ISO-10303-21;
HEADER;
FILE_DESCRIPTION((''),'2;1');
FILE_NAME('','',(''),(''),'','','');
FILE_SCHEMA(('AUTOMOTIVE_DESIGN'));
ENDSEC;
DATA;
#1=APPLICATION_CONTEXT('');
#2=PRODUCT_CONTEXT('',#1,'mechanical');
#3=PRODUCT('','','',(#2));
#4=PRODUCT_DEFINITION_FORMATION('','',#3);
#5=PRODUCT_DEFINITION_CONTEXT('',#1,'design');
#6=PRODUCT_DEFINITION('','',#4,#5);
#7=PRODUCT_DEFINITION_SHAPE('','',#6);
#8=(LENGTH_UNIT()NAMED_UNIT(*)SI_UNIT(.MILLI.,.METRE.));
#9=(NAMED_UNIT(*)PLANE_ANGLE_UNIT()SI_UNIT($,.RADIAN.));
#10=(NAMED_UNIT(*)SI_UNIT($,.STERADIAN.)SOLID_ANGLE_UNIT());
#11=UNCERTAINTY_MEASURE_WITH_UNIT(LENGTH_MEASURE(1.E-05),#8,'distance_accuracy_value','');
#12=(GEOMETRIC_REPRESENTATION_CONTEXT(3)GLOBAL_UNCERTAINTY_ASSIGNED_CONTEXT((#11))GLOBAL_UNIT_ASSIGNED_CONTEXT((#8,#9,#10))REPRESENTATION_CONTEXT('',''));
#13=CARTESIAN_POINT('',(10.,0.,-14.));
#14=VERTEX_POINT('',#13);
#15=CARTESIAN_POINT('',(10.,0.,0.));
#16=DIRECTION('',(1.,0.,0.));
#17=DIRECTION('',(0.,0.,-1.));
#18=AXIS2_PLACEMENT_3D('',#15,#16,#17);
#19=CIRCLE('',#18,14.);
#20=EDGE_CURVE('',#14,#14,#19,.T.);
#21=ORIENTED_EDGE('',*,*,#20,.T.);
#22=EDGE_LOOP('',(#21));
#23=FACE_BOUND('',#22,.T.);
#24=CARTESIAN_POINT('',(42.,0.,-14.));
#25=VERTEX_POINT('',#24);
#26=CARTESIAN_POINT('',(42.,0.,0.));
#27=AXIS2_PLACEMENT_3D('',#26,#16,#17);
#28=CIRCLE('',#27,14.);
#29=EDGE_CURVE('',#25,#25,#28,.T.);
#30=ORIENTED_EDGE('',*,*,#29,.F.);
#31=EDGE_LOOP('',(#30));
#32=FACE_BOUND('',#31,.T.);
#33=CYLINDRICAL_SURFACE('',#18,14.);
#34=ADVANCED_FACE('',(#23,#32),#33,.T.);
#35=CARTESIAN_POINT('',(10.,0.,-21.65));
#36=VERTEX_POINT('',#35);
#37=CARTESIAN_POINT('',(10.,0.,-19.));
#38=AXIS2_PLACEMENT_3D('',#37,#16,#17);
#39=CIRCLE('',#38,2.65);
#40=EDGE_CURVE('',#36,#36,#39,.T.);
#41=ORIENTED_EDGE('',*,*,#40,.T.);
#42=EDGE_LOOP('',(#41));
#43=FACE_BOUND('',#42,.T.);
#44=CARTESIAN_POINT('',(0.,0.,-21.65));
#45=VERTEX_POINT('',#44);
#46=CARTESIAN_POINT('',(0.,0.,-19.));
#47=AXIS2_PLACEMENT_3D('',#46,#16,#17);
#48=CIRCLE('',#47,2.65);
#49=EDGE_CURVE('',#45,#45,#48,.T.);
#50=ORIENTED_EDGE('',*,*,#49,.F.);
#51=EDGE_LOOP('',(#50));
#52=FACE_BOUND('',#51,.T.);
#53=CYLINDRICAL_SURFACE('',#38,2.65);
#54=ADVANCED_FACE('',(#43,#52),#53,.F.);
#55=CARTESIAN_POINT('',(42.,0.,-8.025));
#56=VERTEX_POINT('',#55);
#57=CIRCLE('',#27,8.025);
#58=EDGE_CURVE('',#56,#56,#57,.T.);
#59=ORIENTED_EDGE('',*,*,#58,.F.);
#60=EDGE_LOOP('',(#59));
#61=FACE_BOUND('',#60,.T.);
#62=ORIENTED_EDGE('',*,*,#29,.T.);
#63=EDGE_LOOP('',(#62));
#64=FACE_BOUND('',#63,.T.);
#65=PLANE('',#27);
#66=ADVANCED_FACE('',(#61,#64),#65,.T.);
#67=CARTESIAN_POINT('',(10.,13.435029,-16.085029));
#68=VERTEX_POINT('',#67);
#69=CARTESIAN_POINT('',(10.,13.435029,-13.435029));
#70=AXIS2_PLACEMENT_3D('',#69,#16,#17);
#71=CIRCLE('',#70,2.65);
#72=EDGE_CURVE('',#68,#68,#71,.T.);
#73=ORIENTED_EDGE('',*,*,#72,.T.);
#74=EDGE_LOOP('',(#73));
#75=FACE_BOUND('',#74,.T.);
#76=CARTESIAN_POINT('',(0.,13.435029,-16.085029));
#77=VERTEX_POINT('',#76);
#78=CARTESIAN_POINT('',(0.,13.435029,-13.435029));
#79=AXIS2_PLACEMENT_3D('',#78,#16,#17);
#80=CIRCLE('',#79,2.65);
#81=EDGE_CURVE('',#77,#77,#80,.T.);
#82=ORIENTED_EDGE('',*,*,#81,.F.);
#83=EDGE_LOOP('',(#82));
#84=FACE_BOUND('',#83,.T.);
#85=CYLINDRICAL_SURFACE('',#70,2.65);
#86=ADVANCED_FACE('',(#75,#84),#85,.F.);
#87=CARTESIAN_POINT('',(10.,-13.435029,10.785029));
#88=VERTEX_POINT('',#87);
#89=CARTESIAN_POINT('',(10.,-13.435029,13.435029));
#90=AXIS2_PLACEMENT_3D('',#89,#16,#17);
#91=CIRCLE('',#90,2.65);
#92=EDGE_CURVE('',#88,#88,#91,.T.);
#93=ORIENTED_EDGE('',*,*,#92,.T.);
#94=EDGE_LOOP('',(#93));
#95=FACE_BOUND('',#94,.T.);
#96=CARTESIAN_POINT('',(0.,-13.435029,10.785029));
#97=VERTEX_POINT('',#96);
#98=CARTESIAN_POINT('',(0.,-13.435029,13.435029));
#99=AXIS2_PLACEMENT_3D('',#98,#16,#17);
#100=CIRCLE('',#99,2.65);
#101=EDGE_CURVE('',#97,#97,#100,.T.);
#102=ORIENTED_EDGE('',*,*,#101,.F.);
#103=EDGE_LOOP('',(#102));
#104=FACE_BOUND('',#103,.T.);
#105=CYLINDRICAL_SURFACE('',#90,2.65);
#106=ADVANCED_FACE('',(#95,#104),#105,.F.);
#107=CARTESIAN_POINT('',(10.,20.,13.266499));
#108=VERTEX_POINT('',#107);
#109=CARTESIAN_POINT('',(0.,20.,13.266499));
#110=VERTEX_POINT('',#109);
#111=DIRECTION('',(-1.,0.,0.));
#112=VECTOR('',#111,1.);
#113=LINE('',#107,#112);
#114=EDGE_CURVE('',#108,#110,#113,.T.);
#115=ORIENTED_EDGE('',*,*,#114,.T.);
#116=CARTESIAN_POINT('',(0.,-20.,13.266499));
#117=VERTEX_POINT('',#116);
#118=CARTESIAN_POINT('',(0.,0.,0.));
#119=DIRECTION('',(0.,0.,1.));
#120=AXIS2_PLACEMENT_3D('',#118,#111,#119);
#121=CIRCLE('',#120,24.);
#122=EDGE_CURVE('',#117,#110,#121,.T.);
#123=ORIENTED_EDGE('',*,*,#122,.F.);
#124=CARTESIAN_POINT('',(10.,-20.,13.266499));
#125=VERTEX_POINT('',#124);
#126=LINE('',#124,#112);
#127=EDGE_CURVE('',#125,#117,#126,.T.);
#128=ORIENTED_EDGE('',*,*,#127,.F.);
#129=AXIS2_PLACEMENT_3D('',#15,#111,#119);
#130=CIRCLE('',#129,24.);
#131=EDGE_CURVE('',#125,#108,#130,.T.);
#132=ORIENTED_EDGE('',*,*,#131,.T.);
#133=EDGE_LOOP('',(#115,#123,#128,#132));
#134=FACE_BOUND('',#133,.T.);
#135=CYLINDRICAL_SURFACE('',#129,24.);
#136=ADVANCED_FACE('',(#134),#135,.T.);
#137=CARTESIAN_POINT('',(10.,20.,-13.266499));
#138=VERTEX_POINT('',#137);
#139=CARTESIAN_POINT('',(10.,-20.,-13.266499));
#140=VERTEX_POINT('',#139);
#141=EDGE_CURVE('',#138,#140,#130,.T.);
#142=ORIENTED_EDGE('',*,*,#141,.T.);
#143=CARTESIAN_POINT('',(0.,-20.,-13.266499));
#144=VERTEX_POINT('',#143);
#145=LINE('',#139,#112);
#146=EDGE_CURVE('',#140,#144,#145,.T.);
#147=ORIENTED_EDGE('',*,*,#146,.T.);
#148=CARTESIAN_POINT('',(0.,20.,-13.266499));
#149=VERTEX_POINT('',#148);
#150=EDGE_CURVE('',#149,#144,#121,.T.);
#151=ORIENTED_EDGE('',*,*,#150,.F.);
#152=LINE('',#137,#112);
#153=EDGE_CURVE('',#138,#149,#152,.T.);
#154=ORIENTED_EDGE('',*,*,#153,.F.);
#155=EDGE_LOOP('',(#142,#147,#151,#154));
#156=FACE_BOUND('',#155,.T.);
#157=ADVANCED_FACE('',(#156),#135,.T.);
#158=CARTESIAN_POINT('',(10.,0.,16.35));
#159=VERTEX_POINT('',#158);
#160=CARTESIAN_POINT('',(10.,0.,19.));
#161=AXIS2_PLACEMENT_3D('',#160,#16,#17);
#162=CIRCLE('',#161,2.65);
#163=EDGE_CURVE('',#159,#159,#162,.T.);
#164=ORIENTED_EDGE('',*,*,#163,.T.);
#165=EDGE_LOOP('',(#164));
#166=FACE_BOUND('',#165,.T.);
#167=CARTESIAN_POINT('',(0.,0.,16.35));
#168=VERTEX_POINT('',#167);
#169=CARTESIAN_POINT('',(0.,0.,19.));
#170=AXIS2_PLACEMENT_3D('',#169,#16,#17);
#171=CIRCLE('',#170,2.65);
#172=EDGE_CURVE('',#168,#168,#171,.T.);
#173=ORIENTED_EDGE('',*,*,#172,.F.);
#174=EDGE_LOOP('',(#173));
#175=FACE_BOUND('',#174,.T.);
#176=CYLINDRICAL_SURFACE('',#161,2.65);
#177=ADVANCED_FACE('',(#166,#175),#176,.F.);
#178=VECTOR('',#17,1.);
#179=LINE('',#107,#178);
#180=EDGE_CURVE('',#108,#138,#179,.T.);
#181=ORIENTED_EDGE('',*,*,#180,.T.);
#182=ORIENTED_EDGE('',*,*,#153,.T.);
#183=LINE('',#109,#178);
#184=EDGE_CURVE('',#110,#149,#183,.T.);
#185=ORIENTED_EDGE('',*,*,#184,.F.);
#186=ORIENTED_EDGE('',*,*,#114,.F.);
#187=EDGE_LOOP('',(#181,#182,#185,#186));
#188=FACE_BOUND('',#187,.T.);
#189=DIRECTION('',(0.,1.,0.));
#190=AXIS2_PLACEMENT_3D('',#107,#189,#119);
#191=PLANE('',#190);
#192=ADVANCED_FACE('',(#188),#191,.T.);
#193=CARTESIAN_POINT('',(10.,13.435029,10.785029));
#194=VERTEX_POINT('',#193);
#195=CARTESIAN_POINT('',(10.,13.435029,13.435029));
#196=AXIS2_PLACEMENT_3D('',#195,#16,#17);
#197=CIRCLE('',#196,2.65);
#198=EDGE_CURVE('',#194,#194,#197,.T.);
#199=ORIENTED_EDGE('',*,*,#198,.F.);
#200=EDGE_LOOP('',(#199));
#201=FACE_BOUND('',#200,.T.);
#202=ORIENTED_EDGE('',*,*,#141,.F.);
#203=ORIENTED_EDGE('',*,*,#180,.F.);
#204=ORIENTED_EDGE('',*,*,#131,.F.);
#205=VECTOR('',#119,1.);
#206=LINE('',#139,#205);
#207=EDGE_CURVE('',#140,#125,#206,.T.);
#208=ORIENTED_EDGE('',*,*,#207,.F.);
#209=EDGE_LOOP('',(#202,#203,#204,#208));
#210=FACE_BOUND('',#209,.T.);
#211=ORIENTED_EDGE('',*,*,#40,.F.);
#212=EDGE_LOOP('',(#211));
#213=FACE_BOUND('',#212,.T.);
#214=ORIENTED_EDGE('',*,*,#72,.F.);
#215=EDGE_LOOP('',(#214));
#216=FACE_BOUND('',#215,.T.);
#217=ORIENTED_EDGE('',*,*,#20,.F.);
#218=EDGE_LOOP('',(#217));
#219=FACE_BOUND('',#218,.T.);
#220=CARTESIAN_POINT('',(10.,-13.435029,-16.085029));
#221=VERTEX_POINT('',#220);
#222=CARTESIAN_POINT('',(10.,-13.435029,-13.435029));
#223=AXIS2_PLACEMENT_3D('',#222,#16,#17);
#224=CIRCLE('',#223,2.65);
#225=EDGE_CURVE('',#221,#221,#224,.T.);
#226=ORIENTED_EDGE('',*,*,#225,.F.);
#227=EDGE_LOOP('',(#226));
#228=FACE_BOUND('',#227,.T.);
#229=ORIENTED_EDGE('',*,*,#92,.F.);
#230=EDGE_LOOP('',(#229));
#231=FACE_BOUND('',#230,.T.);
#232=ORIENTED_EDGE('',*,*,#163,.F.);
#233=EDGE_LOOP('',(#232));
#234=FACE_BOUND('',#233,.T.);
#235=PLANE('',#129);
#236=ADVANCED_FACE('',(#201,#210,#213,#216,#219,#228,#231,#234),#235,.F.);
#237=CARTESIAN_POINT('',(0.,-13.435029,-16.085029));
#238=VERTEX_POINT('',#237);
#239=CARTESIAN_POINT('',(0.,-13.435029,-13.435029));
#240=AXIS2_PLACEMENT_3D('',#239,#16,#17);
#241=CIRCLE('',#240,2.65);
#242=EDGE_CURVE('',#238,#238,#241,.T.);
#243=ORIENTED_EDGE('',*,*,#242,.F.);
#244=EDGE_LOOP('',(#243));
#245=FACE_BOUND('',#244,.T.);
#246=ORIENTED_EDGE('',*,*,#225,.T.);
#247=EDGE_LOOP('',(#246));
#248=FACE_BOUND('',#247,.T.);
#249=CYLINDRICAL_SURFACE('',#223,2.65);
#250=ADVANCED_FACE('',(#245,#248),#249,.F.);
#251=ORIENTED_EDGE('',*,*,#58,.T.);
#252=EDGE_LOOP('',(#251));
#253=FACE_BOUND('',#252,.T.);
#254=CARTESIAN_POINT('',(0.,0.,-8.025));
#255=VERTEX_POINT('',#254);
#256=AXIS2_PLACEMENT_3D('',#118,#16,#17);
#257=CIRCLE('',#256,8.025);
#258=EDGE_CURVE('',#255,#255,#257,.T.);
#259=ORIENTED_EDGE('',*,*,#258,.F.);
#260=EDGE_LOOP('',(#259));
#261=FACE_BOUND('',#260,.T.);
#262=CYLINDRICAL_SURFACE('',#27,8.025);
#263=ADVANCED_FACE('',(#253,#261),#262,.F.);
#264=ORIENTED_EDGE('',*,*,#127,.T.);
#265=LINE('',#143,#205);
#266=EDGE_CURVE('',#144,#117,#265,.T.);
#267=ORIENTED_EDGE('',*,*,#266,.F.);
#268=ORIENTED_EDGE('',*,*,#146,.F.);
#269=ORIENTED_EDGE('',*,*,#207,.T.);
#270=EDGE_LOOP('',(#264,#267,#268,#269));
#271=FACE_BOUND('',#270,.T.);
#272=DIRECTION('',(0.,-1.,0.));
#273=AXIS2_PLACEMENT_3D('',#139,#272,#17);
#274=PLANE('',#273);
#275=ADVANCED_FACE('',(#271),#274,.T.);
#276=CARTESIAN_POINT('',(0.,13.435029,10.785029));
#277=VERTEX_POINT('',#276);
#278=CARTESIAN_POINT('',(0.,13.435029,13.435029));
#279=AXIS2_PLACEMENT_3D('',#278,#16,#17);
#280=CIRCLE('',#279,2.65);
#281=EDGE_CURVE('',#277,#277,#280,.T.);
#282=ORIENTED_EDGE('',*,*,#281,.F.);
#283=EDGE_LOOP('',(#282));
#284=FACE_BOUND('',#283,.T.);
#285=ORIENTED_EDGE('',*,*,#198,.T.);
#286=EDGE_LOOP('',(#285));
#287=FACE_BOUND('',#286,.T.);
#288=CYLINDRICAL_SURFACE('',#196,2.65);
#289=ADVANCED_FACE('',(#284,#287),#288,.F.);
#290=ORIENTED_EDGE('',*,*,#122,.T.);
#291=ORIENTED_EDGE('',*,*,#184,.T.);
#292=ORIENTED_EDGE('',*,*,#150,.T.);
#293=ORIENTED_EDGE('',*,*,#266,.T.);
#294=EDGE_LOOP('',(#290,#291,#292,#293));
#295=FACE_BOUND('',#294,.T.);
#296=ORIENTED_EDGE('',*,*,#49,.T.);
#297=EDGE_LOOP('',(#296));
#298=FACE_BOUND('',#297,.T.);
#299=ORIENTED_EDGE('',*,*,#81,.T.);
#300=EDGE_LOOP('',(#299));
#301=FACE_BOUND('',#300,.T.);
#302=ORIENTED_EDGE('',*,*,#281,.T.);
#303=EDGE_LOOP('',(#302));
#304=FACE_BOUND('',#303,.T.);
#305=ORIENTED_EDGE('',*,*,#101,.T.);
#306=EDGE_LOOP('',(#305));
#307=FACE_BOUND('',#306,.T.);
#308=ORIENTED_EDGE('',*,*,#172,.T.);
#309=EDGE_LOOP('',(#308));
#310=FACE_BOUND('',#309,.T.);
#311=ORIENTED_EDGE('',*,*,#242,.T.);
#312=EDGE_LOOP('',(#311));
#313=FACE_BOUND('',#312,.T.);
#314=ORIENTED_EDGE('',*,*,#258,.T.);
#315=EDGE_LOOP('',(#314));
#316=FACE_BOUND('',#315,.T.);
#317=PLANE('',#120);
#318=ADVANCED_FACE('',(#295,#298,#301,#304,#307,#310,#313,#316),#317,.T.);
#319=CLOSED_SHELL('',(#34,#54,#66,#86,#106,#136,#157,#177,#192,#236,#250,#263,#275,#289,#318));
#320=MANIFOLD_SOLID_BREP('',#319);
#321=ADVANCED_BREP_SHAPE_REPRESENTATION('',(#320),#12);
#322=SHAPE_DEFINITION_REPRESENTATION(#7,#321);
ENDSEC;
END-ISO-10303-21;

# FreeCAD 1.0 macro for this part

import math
import FreeCAD as App
import Part
import Sketcher

V = App.Vector
Q = App.Units.Quantity

doc = App.newDocument("Part")
body = doc.addObject("PartDesign::Body", "Body")

# Sketch on YZ plane
sketch1 = doc.addObject("Sketcher::SketchObject", "Sketch")
body.addObject(sketch1)
sketch1.AttachmentSupport = (doc.YZ_Plane, [""])
sketch1.MapMode = "FlatFace"
sketch1.addGeometry([
    Part.LineSegment(V(-20, -13, 0), V(-20, 13, 0)),
    Part.ArcOfCircle(Part.Circle(V(0, 0, 0), V(0, 0, 1), 24), math.radians(34), math.radians(146)),
    Part.LineSegment(V(20, 13, 0), V(20, -13, 0)),
    Part.ArcOfCircle(Part.Circle(V(0, 0, 0), V(0, 0, 1), 24), math.radians(-146), math.radians(-34)),
], False)
sketch1.addConstraint([
    Sketcher.Constraint("Coincident", 0, 2, 1, 2),
    Sketcher.Constraint("Coincident", 1, 1, 2, 1),
    Sketcher.Constraint("Coincident", 2, 2, 3, 2),
    Sketcher.Constraint("Coincident", 3, 1, 0, 1),
    Sketcher.Constraint("Vertical", 0),
    Sketcher.Constraint("Vertical", 2),
    Sketcher.Constraint("Coincident", 1, 3, -1, 1),
    Sketcher.Constraint("Coincident", 3, 3, -1, 1),
    Sketcher.Constraint("Equal", 1, 3),
    Sketcher.Constraint("Horizontal", 0, 2, 1, 1),
    Sketcher.Constraint("Radius", 1, Q("24 mm")),
    Sketcher.Constraint("DistanceX", 0, 2, -1, 1, Q("20 mm")),
])
pad1 = doc.addObject("PartDesign::Pad", "Pad")
body.addObject(pad1)
pad1.Profile = sketch1
pad1.Length = 10

# Sketch on XY plane
sketch2 = doc.addObject("Sketcher::SketchObject", "Sketch001")
body.addObject(sketch2)
sketch2.AttachmentSupport = (doc.XY_Plane, [""])
sketch2.MapMode = "FlatFace"
sketch2.addGeometry([
    Part.LineSegment(V(10, 14, 0), V(10, 0, 0)),
    Part.LineSegment(V(10, 0, 0), V(42, 0, 0)),
    Part.LineSegment(V(42, 0, 0), V(42, 14, 0)),
    Part.LineSegment(V(42, 14, 0), V(10, 14, 0)),
], False)
sketch2.addConstraint([
    Sketcher.Constraint("Coincident", 0, 2, 1, 1),
    Sketcher.Constraint("Coincident", 1, 2, 2, 1),
    Sketcher.Constraint("Coincident", 2, 2, 3, 1),
    Sketcher.Constraint("Coincident", 3, 2, 0, 1),
    Sketcher.Constraint("Vertical", 0),
    Sketcher.Constraint("Horizontal", 1),
    Sketcher.Constraint("Vertical", 2),
    Sketcher.Constraint("Horizontal", 3),
    Sketcher.Constraint("PointOnObject", 0, 2, -1),
    Sketcher.Constraint("DistanceX", 1, 1, 1, 2, Q("32 mm")),
    Sketcher.Constraint("DistanceY", 0, 2, 0, 1, Q("14 mm")),
    Sketcher.Constraint("DistanceX", -1, 1, 0, 2, Q("10 mm")),
])
revolution = doc.addObject("PartDesign::Revolution", "Revolution")
body.addObject(revolution)
revolution.Profile = sketch2
revolution.ReferenceAxis = (sketch2, ["H_Axis"])
revolution.Angle = 360

# Sketch on YZ plane
sketch3 = doc.addObject("Sketcher::SketchObject", "Sketch002")
body.addObject(sketch3)
sketch3.AttachmentSupport = (doc.YZ_Plane, [""])
sketch3.MapMode = "FlatFace"
sketch3.AttachmentOffset = App.Placement(V(0, 0, 42), App.Rotation())
sketch3.addGeometry(Part.Circle(V(0, 0, 0), V(0, 0, 1), 8), False)
sketch3.addConstraint([
    Sketcher.Constraint("Coincident", 0, 3, -1, 1),
    Sketcher.Constraint("Diameter", 0, Q("16.05 mm")),
])
doc.recompute()
hole = doc.addObject("PartDesign::Hole", "Hole")
body.addObject(hole)
hole.Profile = sketch3
hole.ThreadType = "None"
hole.Diameter = 16.05
hole.DepthType = "Dimension"
hole.Depth = 42
hole.DrillPoint = "Flat"

# Sketch on YZ plane
sketch4 = doc.addObject("Sketcher::SketchObject", "Sketch003")
body.addObject(sketch4)
sketch4.AttachmentSupport = (doc.YZ_Plane, [""])
sketch4.MapMode = "FlatFace"
sketch4.AttachmentOffset = App.Placement(V(0, 0, 10), App.Rotation())
sketch4.addGeometry(Part.Circle(V(-13.4, 13.4, 0), V(0, 0, 1), 2.6), False)
sketch4.addConstraint([
    Sketcher.Constraint("Diameter", 0, Q("5.3 mm")),
    Sketcher.Constraint("DistanceX", 0, 3, -1, 1, Q("13.435029 mm")),
    Sketcher.Constraint("DistanceY", -1, 1, 0, 3, Q("13.435029 mm")),
])
doc.recompute()
hole2 = doc.addObject("PartDesign::Hole", "Hole001")
body.addObject(hole2)
hole2.Profile = sketch4
hole2.ThreadType = "None"
hole2.Diameter = 5.3
hole2.DepthType = "ThroughAll"
doc.recompute()

polarpattern = doc.addObject("PartDesign::PolarPattern", "PolarPattern")
body.addObject(polarpattern)
polarpattern.Originals = [hole2]
polarpattern.Axis = (doc.X_Axis, [""])
polarpattern.Angle = 90
polarpattern.Occurrences = 3
polarpattern.Reversed = True
body.Tip = polarpattern
doc.recompute()

mirrored = doc.addObject("PartDesign::Mirrored", "Mirrored")
body.addObject(mirrored)
mirrored.Originals = [hole2]
mirrored.MirrorPlane = (doc.XY_Plane, [""])
body.Tip = mirrored

# Sketch on YZ plane
sketch5 = doc.addObject("Sketcher::SketchObject", "Sketch004")
body.addObject(sketch5)
sketch5.AttachmentSupport = (doc.YZ_Plane, [""])
sketch5.MapMode = "FlatFace"
sketch5.AttachmentOffset = App.Placement(V(0, 0, 10), App.Rotation())
sketch5.addGeometry(Part.Circle(V(0, -19, 0), V(0, 0, 1), 2.6), False)
sketch5.addConstraint([
    Sketcher.Constraint("PointOnObject", 0, 3, -2),
    Sketcher.Constraint("Diameter", 0, Q("5.3 mm")),
    Sketcher.Constraint("DistanceY", 0, 3, -1, 1, Q("19 mm")),
])
doc.recompute()
hole3 = doc.addObject("PartDesign::Hole", "Hole002")
body.addObject(hole3)
hole3.Profile = sketch5
hole3.ThreadType = "None"
hole3.Diameter = 5.3
hole3.DepthType = "ThroughAll"

# Sketch on YZ plane
sketch6 = doc.addObject("Sketcher::SketchObject", "Sketch005")
body.addObject(sketch6)
sketch6.AttachmentSupport = (doc.YZ_Plane, [""])
sketch6.MapMode = "FlatFace"
sketch6.AttachmentOffset = App.Placement(V(0, 0, 10), App.Rotation())
sketch6.addGeometry(Part.Circle(V(13.4, -13.4, 0), V(0, 0, 1), 2.6), False)
sketch6.addConstraint([
    Sketcher.Constraint("Diameter", 0, Q("5.3 mm")),
    Sketcher.Constraint("DistanceX", -1, 1, 0, 3, Q("13.435029 mm")),
    Sketcher.Constraint("DistanceY", 0, 3, -1, 1, Q("13.435029 mm")),
])
doc.recompute()
hole4 = doc.addObject("PartDesign::Hole", "Hole003")
body.addObject(hole4)
hole4.Profile = sketch6
hole4.ThreadType = "None"
hole4.Diameter = 5.3
hole4.DepthType = "ThroughAll"

doc.recompute()
